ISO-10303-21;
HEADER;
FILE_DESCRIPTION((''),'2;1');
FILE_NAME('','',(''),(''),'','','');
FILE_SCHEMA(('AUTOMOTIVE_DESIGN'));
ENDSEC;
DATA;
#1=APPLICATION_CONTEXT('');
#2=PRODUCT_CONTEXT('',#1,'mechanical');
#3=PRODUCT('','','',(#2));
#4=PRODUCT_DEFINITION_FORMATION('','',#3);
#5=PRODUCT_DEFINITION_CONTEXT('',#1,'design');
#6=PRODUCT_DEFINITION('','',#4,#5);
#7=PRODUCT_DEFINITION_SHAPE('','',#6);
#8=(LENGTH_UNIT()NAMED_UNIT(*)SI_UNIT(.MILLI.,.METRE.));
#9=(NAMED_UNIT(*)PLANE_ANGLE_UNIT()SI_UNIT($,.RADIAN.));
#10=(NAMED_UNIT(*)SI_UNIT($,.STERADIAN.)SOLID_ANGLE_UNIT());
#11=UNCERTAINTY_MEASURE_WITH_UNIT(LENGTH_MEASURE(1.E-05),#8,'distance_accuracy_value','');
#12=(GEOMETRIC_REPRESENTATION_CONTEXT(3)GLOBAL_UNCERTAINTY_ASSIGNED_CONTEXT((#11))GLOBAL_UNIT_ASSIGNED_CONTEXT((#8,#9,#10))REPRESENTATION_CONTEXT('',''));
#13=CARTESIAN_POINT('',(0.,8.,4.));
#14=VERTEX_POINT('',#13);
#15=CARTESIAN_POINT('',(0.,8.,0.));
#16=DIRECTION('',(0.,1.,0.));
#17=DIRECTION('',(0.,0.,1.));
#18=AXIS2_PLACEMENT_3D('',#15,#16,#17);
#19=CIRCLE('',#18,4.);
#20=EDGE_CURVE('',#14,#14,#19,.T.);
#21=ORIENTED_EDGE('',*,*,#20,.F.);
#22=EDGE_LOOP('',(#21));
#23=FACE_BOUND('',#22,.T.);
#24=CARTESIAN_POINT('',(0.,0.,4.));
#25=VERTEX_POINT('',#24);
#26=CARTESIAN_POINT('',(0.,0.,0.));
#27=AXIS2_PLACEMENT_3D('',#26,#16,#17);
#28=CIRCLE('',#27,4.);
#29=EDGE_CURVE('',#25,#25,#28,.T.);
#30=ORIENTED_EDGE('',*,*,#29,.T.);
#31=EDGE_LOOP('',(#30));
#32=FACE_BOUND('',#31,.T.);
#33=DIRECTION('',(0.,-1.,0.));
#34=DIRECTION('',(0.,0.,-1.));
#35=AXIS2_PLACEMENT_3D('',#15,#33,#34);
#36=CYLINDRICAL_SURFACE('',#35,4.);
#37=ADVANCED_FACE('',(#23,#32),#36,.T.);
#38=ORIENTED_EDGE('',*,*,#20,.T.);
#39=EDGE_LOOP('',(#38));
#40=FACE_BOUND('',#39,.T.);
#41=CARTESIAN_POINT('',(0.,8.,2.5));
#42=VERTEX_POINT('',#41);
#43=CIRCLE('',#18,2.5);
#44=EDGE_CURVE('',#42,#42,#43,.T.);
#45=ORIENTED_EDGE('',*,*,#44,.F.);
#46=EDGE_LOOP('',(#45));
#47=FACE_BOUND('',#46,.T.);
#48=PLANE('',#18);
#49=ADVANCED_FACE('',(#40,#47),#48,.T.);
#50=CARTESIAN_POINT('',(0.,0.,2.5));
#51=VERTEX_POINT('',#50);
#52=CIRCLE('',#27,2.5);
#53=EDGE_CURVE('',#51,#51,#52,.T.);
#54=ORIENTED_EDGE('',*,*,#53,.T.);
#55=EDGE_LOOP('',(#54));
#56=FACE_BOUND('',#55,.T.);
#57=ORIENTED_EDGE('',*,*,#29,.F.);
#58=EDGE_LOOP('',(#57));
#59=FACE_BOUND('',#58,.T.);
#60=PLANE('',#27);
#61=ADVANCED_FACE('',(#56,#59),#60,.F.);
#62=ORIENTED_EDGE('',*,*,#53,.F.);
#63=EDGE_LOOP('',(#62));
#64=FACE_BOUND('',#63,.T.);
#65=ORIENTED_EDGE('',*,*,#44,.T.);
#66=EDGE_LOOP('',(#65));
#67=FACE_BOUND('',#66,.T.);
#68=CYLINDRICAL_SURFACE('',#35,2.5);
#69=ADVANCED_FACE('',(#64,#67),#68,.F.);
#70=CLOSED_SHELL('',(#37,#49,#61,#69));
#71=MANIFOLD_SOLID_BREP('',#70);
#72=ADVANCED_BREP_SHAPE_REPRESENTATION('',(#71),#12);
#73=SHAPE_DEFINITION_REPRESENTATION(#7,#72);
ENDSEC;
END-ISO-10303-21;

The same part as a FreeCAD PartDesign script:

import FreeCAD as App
import Part
import Sketcher

V = App.Vector

doc = App.newDocument("Part")
body = doc.addObject("PartDesign::Body", "Body")

sketch1 = doc.addObject("Sketcher::SketchObject", "Sketch")
body.addObject(sketch1)
sketch1.AttachmentSupport = (doc.XZ_Plane, [""])
sketch1.MapMode = "FlatFace"
sketch1.addGeometry([
    Part.Circle(V(0, 0, 0), V(0, 0, 1), 4),
    Part.Circle(V(0, 0, 0), V(0, 0, 1), 2.5),
], False)
sketch1.addConstraint([
    Sketcher.Constraint("Coincident", 0, 3, -1, 1),
    Sketcher.Constraint("Coincident", 1, 3, -1, 1),
    Sketcher.Constraint("Diameter", 0, 8.0),
    Sketcher.Constraint("Diameter", 1, 5.0),
])
pad1 = doc.addObject("PartDesign::Pad", "Pad")
body.addObject(pad1)
pad1.Profile = sketch1
pad1.Length = 8
pad1.Reversed = True

doc.recompute()
